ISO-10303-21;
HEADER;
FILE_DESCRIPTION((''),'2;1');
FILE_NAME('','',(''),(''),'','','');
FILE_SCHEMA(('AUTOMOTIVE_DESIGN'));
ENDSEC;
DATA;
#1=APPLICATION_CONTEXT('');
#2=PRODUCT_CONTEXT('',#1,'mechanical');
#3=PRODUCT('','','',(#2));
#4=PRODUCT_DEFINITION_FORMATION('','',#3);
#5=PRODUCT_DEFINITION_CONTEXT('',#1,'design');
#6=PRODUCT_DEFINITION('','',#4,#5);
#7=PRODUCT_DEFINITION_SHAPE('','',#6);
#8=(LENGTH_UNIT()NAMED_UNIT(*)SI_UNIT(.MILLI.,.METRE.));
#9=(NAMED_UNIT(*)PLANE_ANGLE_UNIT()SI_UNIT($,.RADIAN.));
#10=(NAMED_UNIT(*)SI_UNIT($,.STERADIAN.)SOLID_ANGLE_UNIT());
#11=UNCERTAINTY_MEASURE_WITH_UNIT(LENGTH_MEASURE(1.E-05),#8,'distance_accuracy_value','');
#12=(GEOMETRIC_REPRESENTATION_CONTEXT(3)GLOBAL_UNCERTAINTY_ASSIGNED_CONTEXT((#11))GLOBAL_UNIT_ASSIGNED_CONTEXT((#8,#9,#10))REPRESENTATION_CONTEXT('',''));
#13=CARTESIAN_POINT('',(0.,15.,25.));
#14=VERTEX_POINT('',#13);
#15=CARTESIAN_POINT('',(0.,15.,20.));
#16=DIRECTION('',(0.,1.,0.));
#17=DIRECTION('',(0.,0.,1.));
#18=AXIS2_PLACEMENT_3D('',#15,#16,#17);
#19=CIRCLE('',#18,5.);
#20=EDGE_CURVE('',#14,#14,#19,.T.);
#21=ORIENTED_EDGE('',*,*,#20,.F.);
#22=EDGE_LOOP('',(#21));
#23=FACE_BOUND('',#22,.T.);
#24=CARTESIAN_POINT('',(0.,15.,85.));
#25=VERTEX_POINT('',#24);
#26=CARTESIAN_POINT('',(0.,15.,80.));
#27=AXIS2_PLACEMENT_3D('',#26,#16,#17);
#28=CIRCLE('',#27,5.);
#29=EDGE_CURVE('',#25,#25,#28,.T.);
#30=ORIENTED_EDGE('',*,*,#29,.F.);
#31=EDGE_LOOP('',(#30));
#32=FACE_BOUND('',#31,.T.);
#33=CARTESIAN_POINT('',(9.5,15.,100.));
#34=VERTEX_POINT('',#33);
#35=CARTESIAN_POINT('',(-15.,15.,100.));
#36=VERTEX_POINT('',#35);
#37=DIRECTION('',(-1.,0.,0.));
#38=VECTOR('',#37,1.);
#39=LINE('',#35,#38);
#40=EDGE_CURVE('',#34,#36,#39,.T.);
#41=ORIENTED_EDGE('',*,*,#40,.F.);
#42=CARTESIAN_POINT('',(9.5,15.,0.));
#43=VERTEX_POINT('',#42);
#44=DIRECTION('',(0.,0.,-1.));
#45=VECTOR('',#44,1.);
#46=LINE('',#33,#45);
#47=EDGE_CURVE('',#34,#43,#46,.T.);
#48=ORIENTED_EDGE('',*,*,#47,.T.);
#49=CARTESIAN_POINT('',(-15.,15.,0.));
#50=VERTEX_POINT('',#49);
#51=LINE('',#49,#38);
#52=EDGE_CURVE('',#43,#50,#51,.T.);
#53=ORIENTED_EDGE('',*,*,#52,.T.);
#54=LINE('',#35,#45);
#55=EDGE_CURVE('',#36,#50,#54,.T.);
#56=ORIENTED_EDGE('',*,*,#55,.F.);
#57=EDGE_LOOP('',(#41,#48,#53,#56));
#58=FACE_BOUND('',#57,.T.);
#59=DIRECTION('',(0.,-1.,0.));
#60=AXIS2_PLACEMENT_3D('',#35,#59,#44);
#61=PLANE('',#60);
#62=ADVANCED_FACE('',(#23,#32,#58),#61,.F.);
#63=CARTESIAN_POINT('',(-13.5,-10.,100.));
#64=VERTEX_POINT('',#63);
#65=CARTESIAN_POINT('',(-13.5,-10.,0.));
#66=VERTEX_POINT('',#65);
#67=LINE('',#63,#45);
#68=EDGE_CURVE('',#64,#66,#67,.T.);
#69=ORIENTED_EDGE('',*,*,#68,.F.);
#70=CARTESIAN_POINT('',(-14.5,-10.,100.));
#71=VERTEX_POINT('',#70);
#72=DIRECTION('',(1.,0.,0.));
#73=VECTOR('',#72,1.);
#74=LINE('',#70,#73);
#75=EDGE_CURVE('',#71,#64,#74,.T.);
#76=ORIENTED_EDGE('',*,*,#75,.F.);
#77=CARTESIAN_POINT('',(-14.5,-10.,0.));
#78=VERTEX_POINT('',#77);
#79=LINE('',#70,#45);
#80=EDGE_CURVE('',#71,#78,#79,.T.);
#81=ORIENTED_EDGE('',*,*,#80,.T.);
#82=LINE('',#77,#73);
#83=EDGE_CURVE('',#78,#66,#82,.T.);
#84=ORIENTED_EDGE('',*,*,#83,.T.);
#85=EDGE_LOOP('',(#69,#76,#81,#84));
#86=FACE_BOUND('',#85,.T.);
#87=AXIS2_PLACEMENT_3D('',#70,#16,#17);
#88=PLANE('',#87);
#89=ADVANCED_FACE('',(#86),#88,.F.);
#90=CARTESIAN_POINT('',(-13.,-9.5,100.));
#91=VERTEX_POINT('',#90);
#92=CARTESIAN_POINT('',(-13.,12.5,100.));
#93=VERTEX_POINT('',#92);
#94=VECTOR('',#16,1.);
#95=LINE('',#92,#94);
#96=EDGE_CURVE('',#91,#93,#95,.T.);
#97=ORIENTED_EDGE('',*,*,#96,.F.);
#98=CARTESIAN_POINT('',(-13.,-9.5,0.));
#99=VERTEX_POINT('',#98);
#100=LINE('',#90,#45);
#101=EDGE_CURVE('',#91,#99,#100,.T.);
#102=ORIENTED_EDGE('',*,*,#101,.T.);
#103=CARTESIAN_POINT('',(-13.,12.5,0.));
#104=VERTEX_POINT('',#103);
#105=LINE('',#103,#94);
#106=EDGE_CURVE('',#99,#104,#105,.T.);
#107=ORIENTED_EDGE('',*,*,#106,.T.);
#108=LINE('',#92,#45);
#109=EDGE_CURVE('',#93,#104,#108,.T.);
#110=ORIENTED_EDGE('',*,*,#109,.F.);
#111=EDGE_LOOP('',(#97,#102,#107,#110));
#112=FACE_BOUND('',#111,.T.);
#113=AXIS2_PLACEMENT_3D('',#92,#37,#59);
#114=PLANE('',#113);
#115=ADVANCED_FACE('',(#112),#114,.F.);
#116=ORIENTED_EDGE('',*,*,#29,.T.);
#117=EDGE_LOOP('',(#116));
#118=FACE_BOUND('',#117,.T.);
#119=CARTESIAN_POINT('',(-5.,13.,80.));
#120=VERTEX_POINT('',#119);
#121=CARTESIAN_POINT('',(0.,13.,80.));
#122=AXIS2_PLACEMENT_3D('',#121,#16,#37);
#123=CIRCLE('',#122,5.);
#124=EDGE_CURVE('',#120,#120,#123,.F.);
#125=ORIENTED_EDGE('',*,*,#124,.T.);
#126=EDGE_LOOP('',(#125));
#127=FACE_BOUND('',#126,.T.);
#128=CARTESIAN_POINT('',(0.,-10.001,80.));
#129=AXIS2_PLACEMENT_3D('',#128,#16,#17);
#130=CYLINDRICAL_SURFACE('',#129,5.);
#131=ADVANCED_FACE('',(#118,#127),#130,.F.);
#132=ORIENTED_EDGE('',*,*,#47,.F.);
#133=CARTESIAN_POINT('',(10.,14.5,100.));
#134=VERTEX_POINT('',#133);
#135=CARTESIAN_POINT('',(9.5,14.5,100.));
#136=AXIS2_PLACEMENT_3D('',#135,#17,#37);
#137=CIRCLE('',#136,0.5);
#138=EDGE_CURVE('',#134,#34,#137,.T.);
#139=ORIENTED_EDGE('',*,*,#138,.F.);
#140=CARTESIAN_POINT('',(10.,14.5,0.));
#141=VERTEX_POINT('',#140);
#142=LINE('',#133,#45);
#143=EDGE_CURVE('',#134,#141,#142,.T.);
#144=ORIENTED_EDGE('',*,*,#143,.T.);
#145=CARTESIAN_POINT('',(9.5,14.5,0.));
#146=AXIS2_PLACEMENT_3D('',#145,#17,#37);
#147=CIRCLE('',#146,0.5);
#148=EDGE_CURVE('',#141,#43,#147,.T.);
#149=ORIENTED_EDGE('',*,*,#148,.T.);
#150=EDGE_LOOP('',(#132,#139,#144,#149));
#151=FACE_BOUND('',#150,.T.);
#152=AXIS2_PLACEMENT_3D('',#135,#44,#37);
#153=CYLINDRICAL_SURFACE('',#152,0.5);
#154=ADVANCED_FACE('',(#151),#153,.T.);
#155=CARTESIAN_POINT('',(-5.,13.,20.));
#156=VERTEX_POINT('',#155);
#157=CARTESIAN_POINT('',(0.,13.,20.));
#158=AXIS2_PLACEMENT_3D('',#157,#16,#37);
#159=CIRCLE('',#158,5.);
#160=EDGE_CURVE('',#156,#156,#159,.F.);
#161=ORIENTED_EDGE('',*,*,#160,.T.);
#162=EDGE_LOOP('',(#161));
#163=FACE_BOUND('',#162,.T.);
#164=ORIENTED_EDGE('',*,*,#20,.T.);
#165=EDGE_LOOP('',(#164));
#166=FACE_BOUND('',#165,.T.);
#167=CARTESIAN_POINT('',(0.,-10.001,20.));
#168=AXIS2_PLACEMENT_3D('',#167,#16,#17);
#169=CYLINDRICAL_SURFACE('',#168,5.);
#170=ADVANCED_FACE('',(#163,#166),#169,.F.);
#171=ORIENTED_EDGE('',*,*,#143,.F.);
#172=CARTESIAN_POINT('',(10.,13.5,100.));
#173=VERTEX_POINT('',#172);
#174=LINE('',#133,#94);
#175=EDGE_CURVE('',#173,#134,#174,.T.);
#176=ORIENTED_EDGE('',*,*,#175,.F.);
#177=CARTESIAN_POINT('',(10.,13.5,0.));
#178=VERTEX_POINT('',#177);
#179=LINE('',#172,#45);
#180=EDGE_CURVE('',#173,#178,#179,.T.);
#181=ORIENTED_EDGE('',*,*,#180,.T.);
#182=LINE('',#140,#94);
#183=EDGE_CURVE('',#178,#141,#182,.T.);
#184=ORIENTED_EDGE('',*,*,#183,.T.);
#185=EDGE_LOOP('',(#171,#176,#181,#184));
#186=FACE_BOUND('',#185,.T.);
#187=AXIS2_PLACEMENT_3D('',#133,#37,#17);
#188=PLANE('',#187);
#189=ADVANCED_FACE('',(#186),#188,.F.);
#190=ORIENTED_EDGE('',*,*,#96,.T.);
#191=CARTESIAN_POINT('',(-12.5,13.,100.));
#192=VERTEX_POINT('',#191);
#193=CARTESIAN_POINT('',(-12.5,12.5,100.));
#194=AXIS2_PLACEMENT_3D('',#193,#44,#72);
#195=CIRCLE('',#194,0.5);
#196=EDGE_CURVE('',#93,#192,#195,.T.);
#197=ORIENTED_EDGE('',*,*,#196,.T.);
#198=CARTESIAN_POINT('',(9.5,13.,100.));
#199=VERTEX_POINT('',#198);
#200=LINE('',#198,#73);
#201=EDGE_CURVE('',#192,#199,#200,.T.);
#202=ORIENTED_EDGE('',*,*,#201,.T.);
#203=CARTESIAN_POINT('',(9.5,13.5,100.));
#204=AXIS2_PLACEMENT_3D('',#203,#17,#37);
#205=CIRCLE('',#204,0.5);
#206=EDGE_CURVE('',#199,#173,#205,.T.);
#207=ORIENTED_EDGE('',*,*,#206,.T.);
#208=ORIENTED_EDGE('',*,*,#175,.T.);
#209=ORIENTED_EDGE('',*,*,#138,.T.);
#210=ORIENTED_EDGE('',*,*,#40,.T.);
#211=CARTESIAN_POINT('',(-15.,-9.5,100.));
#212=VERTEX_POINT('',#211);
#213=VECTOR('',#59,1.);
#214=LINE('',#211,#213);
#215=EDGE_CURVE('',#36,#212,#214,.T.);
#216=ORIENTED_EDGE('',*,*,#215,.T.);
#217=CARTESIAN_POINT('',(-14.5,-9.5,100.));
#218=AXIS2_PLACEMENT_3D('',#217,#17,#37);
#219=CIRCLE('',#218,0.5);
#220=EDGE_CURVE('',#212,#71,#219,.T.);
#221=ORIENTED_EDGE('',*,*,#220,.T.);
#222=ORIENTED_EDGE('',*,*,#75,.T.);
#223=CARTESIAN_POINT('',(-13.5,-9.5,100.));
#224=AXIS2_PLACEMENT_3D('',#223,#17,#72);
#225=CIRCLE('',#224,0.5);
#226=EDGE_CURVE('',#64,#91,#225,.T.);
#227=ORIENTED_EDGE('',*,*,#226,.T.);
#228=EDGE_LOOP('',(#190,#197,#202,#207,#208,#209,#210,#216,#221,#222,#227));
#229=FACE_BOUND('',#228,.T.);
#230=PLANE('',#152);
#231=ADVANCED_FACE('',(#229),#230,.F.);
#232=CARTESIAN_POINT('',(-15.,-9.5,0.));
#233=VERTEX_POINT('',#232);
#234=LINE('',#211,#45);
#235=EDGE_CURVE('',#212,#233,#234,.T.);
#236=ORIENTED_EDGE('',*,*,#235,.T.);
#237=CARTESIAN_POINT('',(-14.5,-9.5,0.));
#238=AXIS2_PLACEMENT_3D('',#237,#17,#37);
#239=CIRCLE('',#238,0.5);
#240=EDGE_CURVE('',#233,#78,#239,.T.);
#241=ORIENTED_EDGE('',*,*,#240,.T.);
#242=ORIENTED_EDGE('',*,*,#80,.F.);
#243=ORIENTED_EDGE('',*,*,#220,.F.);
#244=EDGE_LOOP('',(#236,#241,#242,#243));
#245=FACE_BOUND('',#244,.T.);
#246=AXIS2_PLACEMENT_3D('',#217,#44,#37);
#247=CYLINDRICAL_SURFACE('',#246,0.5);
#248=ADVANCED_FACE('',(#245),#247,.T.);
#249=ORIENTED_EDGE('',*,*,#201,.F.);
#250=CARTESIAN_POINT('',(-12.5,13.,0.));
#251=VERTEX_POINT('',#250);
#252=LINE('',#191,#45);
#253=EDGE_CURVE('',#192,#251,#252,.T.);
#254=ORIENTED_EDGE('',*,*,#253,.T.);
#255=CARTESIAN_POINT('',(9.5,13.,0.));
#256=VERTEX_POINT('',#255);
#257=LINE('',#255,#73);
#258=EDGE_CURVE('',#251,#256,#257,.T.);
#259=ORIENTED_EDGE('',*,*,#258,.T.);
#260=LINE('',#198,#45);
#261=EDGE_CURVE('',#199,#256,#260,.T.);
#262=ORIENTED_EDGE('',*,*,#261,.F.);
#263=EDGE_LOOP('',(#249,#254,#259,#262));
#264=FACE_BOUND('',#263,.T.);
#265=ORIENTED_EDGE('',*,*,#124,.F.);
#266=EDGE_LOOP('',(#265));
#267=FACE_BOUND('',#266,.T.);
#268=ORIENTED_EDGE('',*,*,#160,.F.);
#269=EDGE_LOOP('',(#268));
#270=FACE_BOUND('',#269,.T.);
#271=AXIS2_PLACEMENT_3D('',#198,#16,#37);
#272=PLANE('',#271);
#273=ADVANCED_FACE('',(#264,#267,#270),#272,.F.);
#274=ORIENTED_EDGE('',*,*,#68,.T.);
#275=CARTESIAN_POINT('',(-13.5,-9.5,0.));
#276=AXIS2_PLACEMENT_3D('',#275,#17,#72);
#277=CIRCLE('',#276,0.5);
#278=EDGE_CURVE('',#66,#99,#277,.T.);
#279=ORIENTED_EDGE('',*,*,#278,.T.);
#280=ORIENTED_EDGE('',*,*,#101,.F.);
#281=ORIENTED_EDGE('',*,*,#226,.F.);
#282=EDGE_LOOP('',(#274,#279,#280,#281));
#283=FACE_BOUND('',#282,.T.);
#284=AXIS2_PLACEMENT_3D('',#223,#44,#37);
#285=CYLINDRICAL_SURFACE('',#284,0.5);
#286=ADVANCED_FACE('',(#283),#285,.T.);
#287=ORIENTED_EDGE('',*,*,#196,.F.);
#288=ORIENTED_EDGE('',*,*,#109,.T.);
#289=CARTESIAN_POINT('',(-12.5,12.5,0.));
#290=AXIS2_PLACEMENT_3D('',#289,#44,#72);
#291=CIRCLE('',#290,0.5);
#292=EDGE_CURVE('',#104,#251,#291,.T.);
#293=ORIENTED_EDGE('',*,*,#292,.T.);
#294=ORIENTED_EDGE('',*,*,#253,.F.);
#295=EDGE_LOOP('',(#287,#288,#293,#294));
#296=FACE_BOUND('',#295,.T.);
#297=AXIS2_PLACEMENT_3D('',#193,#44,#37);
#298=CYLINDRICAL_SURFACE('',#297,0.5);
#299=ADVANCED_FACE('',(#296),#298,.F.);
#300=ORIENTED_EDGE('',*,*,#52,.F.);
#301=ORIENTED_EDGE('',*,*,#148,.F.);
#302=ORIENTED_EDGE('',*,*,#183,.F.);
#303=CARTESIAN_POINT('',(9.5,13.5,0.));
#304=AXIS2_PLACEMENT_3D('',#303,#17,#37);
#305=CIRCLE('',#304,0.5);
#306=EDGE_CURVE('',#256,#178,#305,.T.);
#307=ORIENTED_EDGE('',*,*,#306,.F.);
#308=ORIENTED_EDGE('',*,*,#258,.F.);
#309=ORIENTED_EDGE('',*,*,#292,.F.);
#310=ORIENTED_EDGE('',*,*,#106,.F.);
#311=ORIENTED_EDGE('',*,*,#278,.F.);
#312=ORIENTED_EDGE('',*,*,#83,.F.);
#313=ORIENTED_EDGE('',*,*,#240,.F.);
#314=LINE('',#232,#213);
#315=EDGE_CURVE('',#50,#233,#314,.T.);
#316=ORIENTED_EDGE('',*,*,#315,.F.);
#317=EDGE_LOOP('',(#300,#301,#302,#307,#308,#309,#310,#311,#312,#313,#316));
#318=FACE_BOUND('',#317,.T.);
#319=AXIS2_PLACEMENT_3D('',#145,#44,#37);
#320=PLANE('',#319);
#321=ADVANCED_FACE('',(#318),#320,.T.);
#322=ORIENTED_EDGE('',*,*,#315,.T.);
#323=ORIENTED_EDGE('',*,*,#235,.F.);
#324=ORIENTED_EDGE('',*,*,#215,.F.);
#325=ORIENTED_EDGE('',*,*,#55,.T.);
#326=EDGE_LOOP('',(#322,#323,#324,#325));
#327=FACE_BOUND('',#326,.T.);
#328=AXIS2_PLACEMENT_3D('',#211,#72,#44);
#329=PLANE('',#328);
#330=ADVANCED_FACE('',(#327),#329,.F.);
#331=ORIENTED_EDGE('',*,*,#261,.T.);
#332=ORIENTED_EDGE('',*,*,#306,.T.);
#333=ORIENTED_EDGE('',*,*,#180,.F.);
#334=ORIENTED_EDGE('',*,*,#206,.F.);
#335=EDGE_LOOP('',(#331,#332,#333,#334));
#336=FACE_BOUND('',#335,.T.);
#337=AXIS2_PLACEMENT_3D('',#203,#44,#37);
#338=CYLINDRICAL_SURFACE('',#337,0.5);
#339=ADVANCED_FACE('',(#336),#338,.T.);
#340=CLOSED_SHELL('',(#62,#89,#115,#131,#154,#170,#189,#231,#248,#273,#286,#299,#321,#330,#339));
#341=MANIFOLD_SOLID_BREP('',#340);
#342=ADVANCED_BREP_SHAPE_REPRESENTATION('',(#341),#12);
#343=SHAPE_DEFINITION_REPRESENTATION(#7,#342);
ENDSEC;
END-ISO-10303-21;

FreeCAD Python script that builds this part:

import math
import FreeCAD as App
import Part
import Sketcher
Q = App.Units.Quantity

doc = App.newDocument("Part")
body = doc.addObject("PartDesign::Body", "Body")

# Sketch on XY plane
sketch1 = body.newObject("Sketcher::SketchObject", "Sketch")
sketch1.AttachmentSupport = (doc.getObject("XY_Plane"), [""])
sketch1.MapMode = "FlatFace"
sketch1.addGeometry(Part.LineSegment(App.Vector(10, 13.5, 0), App.Vector(10, 14.5, 0)), False)
sketch1.addGeometry(Part.ArcOfCircle(Part.Circle(App.Vector(9.5, 14.5, 0), App.Vector(0, 0, 1), 0.5), math.radians(0), math.radians(90)), False)
sketch1.addGeometry(Part.LineSegment(App.Vector(9.5, 15, 0), App.Vector(-15, 15, 0)), False)
sketch1.addGeometry(Part.LineSegment(App.Vector(-15, 15, 0), App.Vector(-15, -9.5, 0)), False)
sketch1.addGeometry(Part.ArcOfCircle(Part.Circle(App.Vector(-14.5, -9.5, 0), App.Vector(0, 0, 1), 0.5), math.radians(180), math.radians(270)), False)
sketch1.addGeometry(Part.LineSegment(App.Vector(-14.5, -10, 0), App.Vector(-13.5, -10, 0)), False)
sketch1.addGeometry(Part.ArcOfCircle(Part.Circle(App.Vector(-13.5, -9.5, 0), App.Vector(0, 0, 1), 0.5), math.radians(-90), math.radians(0)), False)
sketch1.addGeometry(Part.LineSegment(App.Vector(-13, -9.5, 0), App.Vector(-13, 12.5, 0)), False)
sketch1.addGeometry(Part.ArcOfCircle(Part.Circle(App.Vector(-12.5, 12.5, 0), App.Vector(0, 0, 1), 0.5), math.radians(90), math.radians(180)), False)
sketch1.addGeometry(Part.LineSegment(App.Vector(-12.5, 13, 0), App.Vector(9.5, 13, 0)), False)
sketch1.addGeometry(Part.ArcOfCircle(Part.Circle(App.Vector(9.5, 13.5, 0), App.Vector(0, 0, 1), 0.5), math.radians(-90), math.radians(0)), False)
sketch1.addConstraint(Sketcher.Constraint("Tangent", 0, 2, 1, 1))
sketch1.addConstraint(Sketcher.Constraint("Tangent", 1, 2, 2, 1))
sketch1.addConstraint(Sketcher.Constraint("Coincident", 2, 2, 3, 1))
sketch1.addConstraint(Sketcher.Constraint("Tangent", 3, 2, 4, 1))
sketch1.addConstraint(Sketcher.Constraint("Tangent", 4, 2, 5, 1))
sketch1.addConstraint(Sketcher.Constraint("Tangent", 5, 2, 6, 1))
sketch1.addConstraint(Sketcher.Constraint("Tangent", 6, 2, 7, 1))
sketch1.addConstraint(Sketcher.Constraint("Tangent", 7, 2, 8, 2))
sketch1.addConstraint(Sketcher.Constraint("Tangent", 8, 1, 9, 1))
sketch1.addConstraint(Sketcher.Constraint("Tangent", 9, 2, 10, 1))
sketch1.addConstraint(Sketcher.Constraint("Tangent", 10, 2, 0, 1))
sketch1.addConstraint(Sketcher.Constraint("Vertical", 0))
sketch1.addConstraint(Sketcher.Constraint("Horizontal", 2))
sketch1.addConstraint(Sketcher.Constraint("Vertical", 3))
sketch1.addConstraint(Sketcher.Constraint("Horizontal", 5))
sketch1.addConstraint(Sketcher.Constraint("Vertical", 7))
sketch1.addConstraint(Sketcher.Constraint("Horizontal", 9))
sketch1.addConstraint(Sketcher.Constraint("Equal", 1, 4))
sketch1.addConstraint(Sketcher.Constraint("Equal", 4, 6))
sketch1.addConstraint(Sketcher.Constraint("Equal", 6, 8))
sketch1.addConstraint(Sketcher.Constraint("Equal", 8, 10))
sketch1.addConstraint(Sketcher.Constraint("Equal", 5, 0))
sketch1.addConstraint(Sketcher.Constraint("Equal", 2, 3))
sketch1.addConstraint(Sketcher.Constraint("Radius", 1, Q("0.5 mm")))
sketch1.addConstraint(Sketcher.Constraint("DistanceX", 5, 1, 5, 2, Q("1 mm")))
sketch1.addConstraint(Sketcher.Constraint("DistanceX", 9, 1, 9, 2, Q("22 mm")))
sketch1.addConstraint(Sketcher.Constraint("DistanceX", -1, 1, 0, 2, Q("10 mm")))
sketch1.addConstraint(Sketcher.Constraint("DistanceY", -1, 1, 1, 2, Q("15 mm")))
pad1 = body.newObject("PartDesign::Pad", "Pad")
pad1.Profile = sketch1
pad1.Length = 100

# Sketch on XZ plane
sketch2 = body.newObject("Sketcher::SketchObject", "Sketch001")
sketch2.AttachmentSupport = (doc.getObject("XZ_Plane"), [""])
sketch2.MapMode = "FlatFace"
sketch2.AttachmentOffset = App.Placement(App.Vector(0, 0, -15), App.Rotation())
sketch2.addGeometry(Part.Circle(App.Vector(0, 80, 0), App.Vector(0, 0, 1), 5), False)
sketch2.addConstraint(Sketcher.Constraint("PointOnObject", 0, 3, -2))
sketch2.addConstraint(Sketcher.Constraint("Diameter", 0, Q("10 mm")))
sketch2.addConstraint(Sketcher.Constraint("DistanceY", -1, 1, 0, 3, Q("80 mm")))
pocket1 = body.newObject("PartDesign::Pocket", "Pocket")
pocket1.Profile = sketch2
pocket1.Type = "UpToFirst"
pocket1.Reversed = True

# Sketch on XZ plane
sketch3 = body.newObject("Sketcher::SketchObject", "Sketch002")
sketch3.AttachmentSupport = (doc.getObject("XZ_Plane"), [""])
sketch3.MapMode = "FlatFace"
sketch3.AttachmentOffset = App.Placement(App.Vector(0, 0, -15), App.Rotation())
sketch3.addGeometry(Part.Circle(App.Vector(0, 20, 0), App.Vector(0, 0, 1), 5), False)
sketch3.addConstraint(Sketcher.Constraint("PointOnObject", 0, 3, -2))
sketch3.addConstraint(Sketcher.Constraint("Diameter", 0, Q("10 mm")))
sketch3.addConstraint(Sketcher.Constraint("DistanceY", -1, 1, 0, 3, Q("20 mm")))
pocket2 = body.newObject("PartDesign::Pocket", "Pocket001")
pocket2.Profile = sketch3
pocket2.Type = "UpToFirst"
pocket2.Reversed = True

doc.recompute()
